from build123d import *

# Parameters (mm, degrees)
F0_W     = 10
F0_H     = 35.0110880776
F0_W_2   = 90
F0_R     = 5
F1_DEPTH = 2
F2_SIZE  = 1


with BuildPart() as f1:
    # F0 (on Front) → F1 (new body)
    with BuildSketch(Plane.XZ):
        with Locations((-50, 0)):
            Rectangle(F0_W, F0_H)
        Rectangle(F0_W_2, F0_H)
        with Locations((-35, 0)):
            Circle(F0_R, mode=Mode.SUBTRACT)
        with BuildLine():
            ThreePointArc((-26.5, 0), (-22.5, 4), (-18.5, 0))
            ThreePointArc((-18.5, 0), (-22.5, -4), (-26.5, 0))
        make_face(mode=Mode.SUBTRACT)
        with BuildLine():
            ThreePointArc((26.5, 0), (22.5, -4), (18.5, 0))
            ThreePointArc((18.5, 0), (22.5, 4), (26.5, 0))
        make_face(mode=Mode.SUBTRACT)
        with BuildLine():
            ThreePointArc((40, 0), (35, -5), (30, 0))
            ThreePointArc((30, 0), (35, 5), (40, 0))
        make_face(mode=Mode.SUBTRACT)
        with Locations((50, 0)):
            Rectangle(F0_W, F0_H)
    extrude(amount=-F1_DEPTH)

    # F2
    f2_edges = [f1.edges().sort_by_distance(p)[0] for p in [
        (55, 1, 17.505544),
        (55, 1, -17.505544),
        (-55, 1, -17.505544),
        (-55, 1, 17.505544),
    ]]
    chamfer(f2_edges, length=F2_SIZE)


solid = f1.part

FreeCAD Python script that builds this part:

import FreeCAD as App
import Part
import Sketcher
from FreeCAD import Vector
Q = App.Units.Quantity


def edges_at(feature, points):
    """Names of the edges that pass closest to the given points."""
    edges = feature.Shape.Edges
    near = lambda p: min(range(len(edges)), key=lambda i: edges[i].distToShape(Part.Vertex(*p))[0])
    return sorted({f"Edge{near(p) + 1}" for p in points})

doc = App.newDocument("Part")
body = doc.addObject("PartDesign::Body", "Body")

# Sketch on XZ plane
sketch1 = doc.addObject("Sketcher::SketchObject", "Sketch")
body.addObject(sketch1)
sketch1.AttachmentSupport = (doc.XZ_Plane, [""])
sketch1.MapMode = "FlatFace"
sketch1.addGeometry(Part.LineSegment(Vector(-55, 17.5, 0), Vector(-55, -17.5, 0)), False)
sketch1.addGeometry(Part.LineSegment(Vector(-55, -17.5, 0), Vector(55, -17.5, 0)), False)
sketch1.addGeometry(Part.LineSegment(Vector(55, -17.5, 0), Vector(55, 17.5, 0)), False)
sketch1.addGeometry(Part.LineSegment(Vector(55, 17.5, 0), Vector(-55, 17.5, 0)), False)
sketch1.addGeometry(Part.Circle(Vector(-35, 0, 0), Vector(0, 0, 1), 5), False)
sketch1.addGeometry(Part.Circle(Vector(-22.5, 0, 0), Vector(0, 0, 1), 4), False)
sketch1.addGeometry(Part.Circle(Vector(22.5, 0, 0), Vector(0, 0, 1), 4), False)
sketch1.addGeometry(Part.Circle(Vector(35, 0, 0), Vector(0, 0, 1), 5), False)
sketch1.addConstraint(Sketcher.Constraint("Coincident", 0, 2, 1, 1))
sketch1.addConstraint(Sketcher.Constraint("Coincident", 1, 2, 2, 1))
sketch1.addConstraint(Sketcher.Constraint("Coincident", 2, 2, 3, 1))
sketch1.addConstraint(Sketcher.Constraint("Coincident", 3, 2, 0, 1))
sketch1.addConstraint(Sketcher.Constraint("Vertical", 0))
sketch1.addConstraint(Sketcher.Constraint("Horizontal", 1))
sketch1.addConstraint(Sketcher.Constraint("Vertical", 2))
sketch1.addConstraint(Sketcher.Constraint("Horizontal", 3))
sketch1.addConstraint(Sketcher.Constraint("Equal", 5, 6))
sketch1.addConstraint(Sketcher.Constraint("Equal", 4, 7))
sketch1.addConstraint(Sketcher.Constraint("Symmetric", 5, 3, 6, 3, -1, 1))
sketch1.addConstraint(Sketcher.Constraint("Symmetric", 4, 3, 7, 3, -1, 1))
sketch1.addConstraint(Sketcher.Constraint("Symmetric", 0, 2, 2, 2, -1, 1))
sketch1.addConstraint(Sketcher.Constraint("PointOnObject", 4, 3, -1))
sketch1.addConstraint(Sketcher.Constraint("PointOnObject", 5, 3, -1))
sketch1.addConstraint(Sketcher.Constraint("Diameter", 4, Q("10 mm")))
sketch1.addConstraint(Sketcher.Constraint("Diameter", 5, Q("8 mm")))
sketch1.addConstraint(Sketcher.Constraint("DistanceX", 1, 1, 1, 2, Q("110 mm")))
sketch1.addConstraint(Sketcher.Constraint("DistanceX", 4, 3, -1, 1, Q("35 mm")))
sketch1.addConstraint(Sketcher.Constraint("DistanceX", 5, 3, 6, 3, Q("45 mm")))
sketch1.addConstraint(Sketcher.Constraint("DistanceY", 0, 2, 0, 1, Q("35.011088 mm")))
pad1 = doc.addObject("PartDesign::Pad", "Pad")
body.addObject(pad1)
pad1.Profile = sketch1
pad1.Length = 2
pad1.Reversed = True
doc.recompute()

chamfer = doc.addObject("PartDesign::Chamfer", "Chamfer")
body.addObject(chamfer)
chamfer.Base = (pad1, edges_at(pad1, [
    (55, 1, 17.506),
    (55, 1, -17.506),
    (-55, 1, -17.506),
    (-55, 1, 17.506),
]))
chamfer.Size = 1

doc.recompute()
